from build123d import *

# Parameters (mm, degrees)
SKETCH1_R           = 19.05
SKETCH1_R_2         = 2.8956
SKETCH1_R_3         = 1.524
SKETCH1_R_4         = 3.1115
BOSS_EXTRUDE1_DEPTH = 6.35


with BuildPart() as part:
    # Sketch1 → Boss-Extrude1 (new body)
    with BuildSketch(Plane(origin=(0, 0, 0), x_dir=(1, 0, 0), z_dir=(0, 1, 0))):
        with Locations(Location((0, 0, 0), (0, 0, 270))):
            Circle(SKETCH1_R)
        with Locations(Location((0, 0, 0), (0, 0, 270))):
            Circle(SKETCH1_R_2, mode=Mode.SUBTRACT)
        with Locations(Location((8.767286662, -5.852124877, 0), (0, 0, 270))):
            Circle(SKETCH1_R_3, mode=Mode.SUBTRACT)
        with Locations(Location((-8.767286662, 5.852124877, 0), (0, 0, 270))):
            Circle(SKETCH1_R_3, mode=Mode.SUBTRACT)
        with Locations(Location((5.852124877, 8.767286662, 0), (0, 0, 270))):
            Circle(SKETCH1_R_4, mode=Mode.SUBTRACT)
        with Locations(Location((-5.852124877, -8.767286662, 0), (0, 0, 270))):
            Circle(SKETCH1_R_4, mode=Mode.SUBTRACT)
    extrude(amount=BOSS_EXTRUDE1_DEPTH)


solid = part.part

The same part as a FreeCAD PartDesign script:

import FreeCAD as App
import Part
import Sketcher

V = App.Vector
Q = App.Units.Quantity

doc = App.newDocument("Part")
body = doc.addObject("PartDesign::Body", "Body")

# Sketch on XZ plane
sketch1 = body.newObject("Sketcher::SketchObject", "Sketch")
sketch1.AttachmentSupport = (doc.getObject("XZ_Plane"), [""])
sketch1.MapMode = "FlatFace"
sketch1.addGeometry([
    Part.Circle(V(0, 0, 0), V(0, 0, 1), 19.05),  # 0
    Part.Circle(V(-8.767287, -5.852125, 0), V(0, 0, 1), 1.524),  # 1
    Part.Circle(V(-5.852125, 8.767287, 0), V(0, 0, 1), 3.1115),  # 2
    Part.Circle(V(5.852125, -8.767287, 0), V(0, 0, 1), 3.1115),  # 3
    Part.Circle(V(0, 0, 0), V(0, 0, 1), 2.8956),  # 4
    Part.Circle(V(8.767287, 5.852125, 0), V(0, 0, 1), 1.524),  # 5
], False)
sketch1.addConstraint([
    Sketcher.Constraint("Coincident", 0, 3, -1, 1),
    Sketcher.Constraint("Coincident", 4, 3, -1, 1),
    Sketcher.Constraint("Equal", 2, 3),
    Sketcher.Constraint("Equal", 1, 5),
    Sketcher.Constraint("Symmetric", 2, 3, 3, 3, -1, 1),
    Sketcher.Constraint("Symmetric", 1, 3, 5, 3, -1, 1),
    Sketcher.Constraint("Diameter", 0, Q("1.5 in")),
    Sketcher.Constraint("Diameter", 1, Q("0.12 in")),
    Sketcher.Constraint("Diameter", 2, Q("0.245 in")),
    Sketcher.Constraint("Diameter", 4, Q("0.228 in")),
    Sketcher.Constraint("DistanceX", 1, 3, 2, 3, Q("2.915162 mm")),
    Sketcher.Constraint("DistanceY", 1, 3, 2, 3, Q("14.619412 mm")),
    Sketcher.Constraint("DistanceX", 1, 3, 3, 3, Q("14.619412 mm")),
    Sketcher.Constraint("DistanceY", 3, 3, 1, 3, Q("2.915162 mm")),
])
pad1 = body.newObject("PartDesign::Pad", "Pad")
pad1.Profile = sketch1
pad1.Length = Q("0.25 in")
pad1.Reversed = True

doc.recompute()
